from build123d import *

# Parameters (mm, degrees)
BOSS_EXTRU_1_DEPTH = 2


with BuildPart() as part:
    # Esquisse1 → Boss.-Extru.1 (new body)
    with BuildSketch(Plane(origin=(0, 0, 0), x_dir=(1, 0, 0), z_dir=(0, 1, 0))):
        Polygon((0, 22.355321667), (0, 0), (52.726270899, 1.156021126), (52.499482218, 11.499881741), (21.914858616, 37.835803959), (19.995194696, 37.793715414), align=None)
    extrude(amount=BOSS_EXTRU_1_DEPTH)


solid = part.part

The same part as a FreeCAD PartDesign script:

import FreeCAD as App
import Part
import Sketcher
from FreeCAD import Vector
Q = App.Units.Quantity


def add_polygon(sketch, points):
    """Adds a closed chain of lines whose ends are joined by coincident constraints."""
    first, n = sketch.GeometryCount, len(points)
    for a, b in zip(points, points[1:] + points[:1]):
        sketch.addGeometry(Part.LineSegment(App.Vector(*a, 0), App.Vector(*b, 0)), False)
    for i in range(n):
        sketch.addConstraint(Sketcher.Constraint("Coincident", first + i, 2, first + (i + 1) % n, 1))

doc = App.newDocument("Part")
body = doc.addObject("PartDesign::Body", "Body")

# Sketch on XZ plane
sketch1 = body.newObject("Sketcher::SketchObject", "Sketch")
sketch1.AttachmentSupport = (doc.getObject("XZ_Plane"), [""])
sketch1.MapMode = "FlatFace"
add_polygon(sketch1, [(0, -22.355322), (0, 0), (52.726271, -1.156021), (52.499482, -11.499882), (21.914859, -37.835804), (19.995195, -37.793715)])  # lines 0-5
sketch1.addConstraint([
    Sketcher.Constraint("Vertical", 0),
    Sketcher.Constraint("Coincident", 0, 2, -1, 1),
    Sketcher.Constraint("Perpendicular", 1, 2),
    Sketcher.Constraint("Perpendicular", 2, 4),
    Sketcher.Constraint("DistanceY", 0, 1, 0, 2, Q("22.355322 mm")),
    Sketcher.Constraint("DistanceY", 5, 2, 1, 2, Q("21.199301 mm")),
    Sketcher.Constraint("DistanceX", -1, 1, 1, 2, Q("52.726271 mm")),
    Sketcher.Constraint("DistanceY", 2, 2, -1, 1, Q("11.499882 mm")),
    Sketcher.Constraint("DistanceX", -1, 1, 3, 2, Q("21.914859 mm")),
    Sketcher.Constraint("DistanceY", 3, 2, 4, 2, Q("0.042089 mm")),
    Sketcher.Constraint("Distance", 3, Q("40.360872 mm")),
])
pad1 = body.newObject("PartDesign::Pad", "Pad")
pad1.Profile = sketch1
pad1.Length = 2
pad1.Reversed = True

doc.recompute()
